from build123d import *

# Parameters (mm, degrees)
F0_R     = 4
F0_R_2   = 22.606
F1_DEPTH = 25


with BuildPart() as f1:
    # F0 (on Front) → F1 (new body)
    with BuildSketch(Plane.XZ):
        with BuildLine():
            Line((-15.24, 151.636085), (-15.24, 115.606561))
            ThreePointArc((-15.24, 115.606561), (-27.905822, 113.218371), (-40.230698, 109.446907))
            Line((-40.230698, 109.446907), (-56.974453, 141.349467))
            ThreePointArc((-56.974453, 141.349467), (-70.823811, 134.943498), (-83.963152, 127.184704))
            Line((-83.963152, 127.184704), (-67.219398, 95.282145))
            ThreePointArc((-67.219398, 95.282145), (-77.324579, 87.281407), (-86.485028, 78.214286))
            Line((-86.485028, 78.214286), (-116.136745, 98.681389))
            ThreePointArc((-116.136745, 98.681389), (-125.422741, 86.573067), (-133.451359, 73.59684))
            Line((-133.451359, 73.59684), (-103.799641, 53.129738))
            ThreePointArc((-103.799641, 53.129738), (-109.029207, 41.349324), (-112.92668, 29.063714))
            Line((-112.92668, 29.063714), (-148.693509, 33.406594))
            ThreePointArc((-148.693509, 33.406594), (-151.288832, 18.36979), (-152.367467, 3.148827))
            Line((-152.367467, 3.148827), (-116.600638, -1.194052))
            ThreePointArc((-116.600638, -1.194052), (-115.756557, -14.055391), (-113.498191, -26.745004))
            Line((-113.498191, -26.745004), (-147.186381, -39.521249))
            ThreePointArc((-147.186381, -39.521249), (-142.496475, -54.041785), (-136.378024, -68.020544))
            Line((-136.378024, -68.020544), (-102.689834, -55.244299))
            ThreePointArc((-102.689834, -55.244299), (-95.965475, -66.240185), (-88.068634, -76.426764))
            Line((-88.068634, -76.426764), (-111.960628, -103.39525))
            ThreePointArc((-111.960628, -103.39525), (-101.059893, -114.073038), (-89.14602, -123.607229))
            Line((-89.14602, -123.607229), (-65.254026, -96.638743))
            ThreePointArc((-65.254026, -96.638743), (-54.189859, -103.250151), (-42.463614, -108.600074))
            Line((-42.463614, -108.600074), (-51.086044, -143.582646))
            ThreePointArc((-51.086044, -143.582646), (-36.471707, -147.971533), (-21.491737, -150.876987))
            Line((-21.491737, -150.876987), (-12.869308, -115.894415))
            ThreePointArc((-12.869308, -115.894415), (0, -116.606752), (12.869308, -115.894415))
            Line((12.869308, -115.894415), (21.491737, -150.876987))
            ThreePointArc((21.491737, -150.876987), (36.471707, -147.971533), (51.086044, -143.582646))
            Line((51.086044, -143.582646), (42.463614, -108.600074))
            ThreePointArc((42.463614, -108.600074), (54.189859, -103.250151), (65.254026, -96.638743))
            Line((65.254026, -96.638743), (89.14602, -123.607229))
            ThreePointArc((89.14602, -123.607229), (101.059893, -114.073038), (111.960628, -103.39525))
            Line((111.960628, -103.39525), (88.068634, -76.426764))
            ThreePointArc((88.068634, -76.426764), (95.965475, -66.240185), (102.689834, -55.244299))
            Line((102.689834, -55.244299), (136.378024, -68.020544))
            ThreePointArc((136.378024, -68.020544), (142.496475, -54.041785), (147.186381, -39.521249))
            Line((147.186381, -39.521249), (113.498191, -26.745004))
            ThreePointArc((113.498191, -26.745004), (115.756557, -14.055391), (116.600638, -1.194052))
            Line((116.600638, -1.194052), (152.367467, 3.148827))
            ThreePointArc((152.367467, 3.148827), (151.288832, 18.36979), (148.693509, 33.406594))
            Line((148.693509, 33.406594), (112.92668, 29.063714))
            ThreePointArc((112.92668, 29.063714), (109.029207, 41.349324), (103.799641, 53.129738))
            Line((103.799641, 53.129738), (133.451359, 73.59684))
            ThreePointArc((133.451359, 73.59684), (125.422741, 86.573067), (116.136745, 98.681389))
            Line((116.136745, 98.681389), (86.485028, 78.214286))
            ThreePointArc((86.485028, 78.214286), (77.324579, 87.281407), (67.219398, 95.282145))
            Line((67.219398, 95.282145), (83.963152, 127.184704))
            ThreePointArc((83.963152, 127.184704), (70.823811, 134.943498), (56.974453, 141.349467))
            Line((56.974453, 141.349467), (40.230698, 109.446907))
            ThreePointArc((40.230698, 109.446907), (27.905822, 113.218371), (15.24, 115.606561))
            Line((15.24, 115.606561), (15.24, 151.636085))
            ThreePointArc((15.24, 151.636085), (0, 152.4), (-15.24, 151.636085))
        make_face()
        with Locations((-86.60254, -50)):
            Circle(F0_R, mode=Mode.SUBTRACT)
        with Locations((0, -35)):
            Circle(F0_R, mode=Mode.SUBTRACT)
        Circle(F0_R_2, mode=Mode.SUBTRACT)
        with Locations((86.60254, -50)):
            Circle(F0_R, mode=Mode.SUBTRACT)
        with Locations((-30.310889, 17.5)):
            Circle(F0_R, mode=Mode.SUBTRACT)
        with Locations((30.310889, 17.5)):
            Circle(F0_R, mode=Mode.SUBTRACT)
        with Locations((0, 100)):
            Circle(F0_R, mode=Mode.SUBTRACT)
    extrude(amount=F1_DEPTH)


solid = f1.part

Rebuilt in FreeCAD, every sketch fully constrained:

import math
import FreeCAD as App
import Part
import Sketcher
from FreeCAD import Vector
Q = App.Units.Quantity

doc = App.newDocument("Part")
body = doc.addObject("PartDesign::Body", "Body")

# Sketch on XZ plane
sketch1 = doc.addObject("Sketcher::SketchObject", "Sketch")
body.addObject(sketch1)
sketch1.AttachmentSupport = (doc.XZ_Plane, [""])
sketch1.MapMode = "FlatFace"
sketch1.addGeometry([
    Part.LineSegment(Vector(-15.24, 151.636085, 0), Vector(-15.24, 115.606561, 0)),  # 0
    Part.ArcOfCircle(Part.Circle(Vector(0.000017, -0.000066, 0), Vector(0, 0, 1), 116.606819), math.radians(97.509799), math.radians(110.182509)),  # 1
    Part.LineSegment(Vector(-40.230698, 109.446907, 0), Vector(-56.974453, 141.349467, 0)),  # 2
    Part.ArcOfCircle(Part.Circle(Vector(0.000039, -0.000064, 0), Vector(0, 0, 1), 152.400074), math.radians(111.953142), math.radians(123.431477)),  # 3
    Part.LineSegment(Vector(-83.963152, 127.184704, 0), Vector(-67.219398, 95.282145, 0)),  # 4
    Part.ArcOfCircle(Part.Circle(Vector(0.000041, -0.000046, 0), Vector(0, 0, 1), 116.606813), math.radians(125.202107), math.radians(137.874817)),  # 5
    Part.LineSegment(Vector(-86.485028, 78.214286, 0), Vector(-116.136745, 98.681389, 0)),  # 6
    Part.ArcOfCircle(Part.Circle(Vector(0.0001, -0.000069, 0), Vector(0, 0, 1), 152.400121), math.radians(139.645449), math.radians(151.123781)),  # 7
    Part.LineSegment(Vector(-133.451359, 73.59684, 0), Vector(-103.799641, 53.129738, 0)),  # 8
    Part.ArcOfCircle(Part.Circle(Vector(-0.000029, 0.000011, 0), Vector(0, 0, 1), 116.60672), math.radians(152.894409), math.radians(165.567129)),  # 9
    Part.LineSegment(Vector(-112.92668, 29.063714, 0), Vector(-148.693509, 33.406594, 0)),  # 10
    Part.ArcOfCircle(Part.Circle(Vector(0.000165, -0.00002, 0), Vector(0, 0, 1), 152.400166), math.radians(167.337759), math.radians(178.816088)),  # 11
    Part.LineSegment(Vector(-152.367467, 3.148827, 0), Vector(-116.600638, -1.194052, 0)),  # 12
    Part.ArcOfCircle(Part.Circle(Vector(0.000046, 0.000004, 0), Vector(0, 0, 1), 116.606798), math.radians(-179.41328), math.radians(-166.740568)),  # 13
    Part.LineSegment(Vector(-113.498191, -26.745004, 0), Vector(-147.186381, -39.521249, 0)),  # 14
    Part.ArcOfCircle(Part.Circle(Vector(-0.000036, -0.000013, 0), Vector(0, 0, 1), 152.399962), math.radians(-164.969941), math.radians(-153.491597)),  # 15
    Part.LineSegment(Vector(-136.378024, -68.020544, 0), Vector(-102.689834, -55.244299, 0)),  # 16
    Part.ArcOfCircle(Part.Circle(Vector(0.000036, 0.000026, 0), Vector(0, 0, 1), 116.606796), math.radians(-151.720971), math.radians(-139.048259)),  # 17
    Part.LineSegment(Vector(-88.068634, -76.426764, 0), Vector(-111.960628, -103.39525, 0)),  # 18
    Part.ArcOfCircle(Part.Circle(Vector(-0.000012, -0.000014, 0), Vector(0, 0, 1), 152.399982), math.radians(-137.277633), math.radians(-125.79929)),  # 19
    Part.LineSegment(Vector(-89.14602, -123.607229, 0), Vector(-65.254026, -96.638743, 0)),  # 20
    Part.ArcOfCircle(Part.Circle(Vector(0.000024, 0.000045, 0), Vector(0, 0, 1), 116.606802), math.radians(-124.028663), math.radians(-111.355952)),  # 21
    Part.LineSegment(Vector(-42.463614, -108.600074, 0), Vector(-51.086044, -143.582646, 0)),  # 22
    Part.ArcOfCircle(Part.Circle(Vector(0.000006, 0.000035, 0), Vector(0, 0, 1), 152.400036), math.radians(-109.585322), math.radians(-98.106984)),  # 23
    Part.LineSegment(Vector(-21.491737, -150.876987, 0), Vector(-12.869308, -115.894415, 0)),  # 24
    Part.ArcOfCircle(Part.Circle(Vector(0, -0.000067, 0), Vector(0, 0, 1), 116.606685), math.radians(-96.336362), math.radians(-83.663638)),  # 25
    Part.LineSegment(Vector(12.869308, -115.894415, 0), Vector(21.491737, -150.876987, 0)),  # 26
    Part.ArcOfCircle(Part.Circle(Vector(-0.000006, 0.000035, 0), Vector(0, 0, 1), 152.400036), math.radians(-81.893016), math.radians(-70.414678)),  # 27
    Part.LineSegment(Vector(51.086044, -143.582646, 0), Vector(42.463614, -108.600074, 0)),  # 28
    Part.ArcOfCircle(Part.Circle(Vector(-0.000024, 0.000045, 0), Vector(0, 0, 1), 116.606802), math.radians(-68.644048), math.radians(-55.971337)),  # 29
    Part.LineSegment(Vector(65.254026, -96.638743, 0), Vector(89.14602, -123.607229, 0)),  # 30
    Part.ArcOfCircle(Part.Circle(Vector(0.000012, -0.000014, 0), Vector(0, 0, 1), 152.399982), math.radians(-54.20071), math.radians(-42.722367)),  # 31
    Part.LineSegment(Vector(111.960628, -103.39525, 0), Vector(88.068634, -76.426764, 0)),  # 32
    Part.ArcOfCircle(Part.Circle(Vector(-0.000036, 0.000026, 0), Vector(0, 0, 1), 116.606796), math.radians(-40.951741), math.radians(-28.279029)),  # 33
    Part.LineSegment(Vector(102.689834, -55.244299, 0), Vector(136.378024, -68.020544, 0)),  # 34
    Part.ArcOfCircle(Part.Circle(Vector(0.000036, -0.000013, 0), Vector(0, 0, 1), 152.399962), math.radians(-26.508403), math.radians(-15.030059)),  # 35
    Part.LineSegment(Vector(147.186381, -39.521249, 0), Vector(113.498191, -26.745004, 0)),  # 36
    Part.ArcOfCircle(Part.Circle(Vector(-0.000046, 0.000004, 0), Vector(0, 0, 1), 116.606798), math.radians(-13.259432), math.radians(-0.58672)),  # 37
    Part.LineSegment(Vector(116.600638, -1.194052, 0), Vector(152.367467, 3.148827, 0)),  # 38
    Part.ArcOfCircle(Part.Circle(Vector(-0.000165, -0.00002, 0), Vector(0, 0, 1), 152.400166), math.radians(1.183912), math.radians(12.662241)),  # 39
    Part.LineSegment(Vector(148.693509, 33.406594, 0), Vector(112.92668, 29.063714, 0)),  # 40
    Part.ArcOfCircle(Part.Circle(Vector(0.000029, 0.000011, 0), Vector(0, 0, 1), 116.60672), math.radians(14.432871), math.radians(27.105591)),  # 41
    Part.LineSegment(Vector(103.799641, 53.129738, 0), Vector(133.451359, 73.59684, 0)),  # 42
    Part.ArcOfCircle(Part.Circle(Vector(-0.0001, -0.000069, 0), Vector(0, 0, 1), 152.400121), math.radians(28.876219), math.radians(40.354551)),  # 43
    Part.LineSegment(Vector(116.136745, 98.681389, 0), Vector(86.485028, 78.214286, 0)),  # 44
    Part.ArcOfCircle(Part.Circle(Vector(-0.000041, -0.000046, 0), Vector(0, 0, 1), 116.606813), math.radians(42.125183), math.radians(54.797893)),  # 45
    Part.LineSegment(Vector(67.219398, 95.282145, 0), Vector(83.963152, 127.184704, 0)),  # 46
    Part.ArcOfCircle(Part.Circle(Vector(-0.000039, -0.000064, 0), Vector(0, 0, 1), 152.400074), math.radians(56.568523), math.radians(68.046858)),  # 47
    Part.LineSegment(Vector(56.974453, 141.349467, 0), Vector(40.230698, 109.446907, 0)),  # 48
    Part.ArcOfCircle(Part.Circle(Vector(-0.000017, -0.000066, 0), Vector(0, 0, 1), 116.606819), math.radians(69.817491), math.radians(82.490201)),  # 49
    Part.LineSegment(Vector(15.24, 115.606561, 0), Vector(15.24, 151.636085, 0)),  # 50
    Part.ArcOfCircle(Part.Circle(Vector(0, 0.000082, 0), Vector(0, 0, 1), 152.399918), math.radians(84.260826), math.radians(95.739174)),  # 51
    Part.Circle(Vector(-86.60254, -50, 0), Vector(0, 0, 1), 4),  # 52
    Part.Circle(Vector(-30.310889, 17.5, 0), Vector(0, 0, 1), 4),  # 53
    Part.Circle(Vector(0, -35, 0), Vector(0, 0, 1), 4),  # 54
    Part.Circle(Vector(86.60254, -50, 0), Vector(0, 0, 1), 4),  # 55
    Part.Circle(Vector(0, 0, 0), Vector(0, 0, 1), 22.606),  # 56
    Part.Circle(Vector(30.310889, 17.5, 0), Vector(0, 0, 1), 4),  # 57
    Part.Circle(Vector(0, 100, 0), Vector(0, 0, 1), 4),  # 58
], False)
sketch1.addConstraint([
    Sketcher.Constraint("Coincident", 0, 2, 1, 1),
    Sketcher.Constraint("Coincident", 1, 2, 2, 1),
    Sketcher.Constraint("Coincident", 2, 2, 3, 1),
    Sketcher.Constraint("Coincident", 3, 2, 4, 1),
    Sketcher.Constraint("Coincident", 4, 2, 5, 1),
    Sketcher.Constraint("Coincident", 5, 2, 6, 1),
    Sketcher.Constraint("Coincident", 6, 2, 7, 1),
    Sketcher.Constraint("Coincident", 7, 2, 8, 1),
    Sketcher.Constraint("Coincident", 8, 2, 9, 1),
    Sketcher.Constraint("Coincident", 9, 2, 10, 1),
    Sketcher.Constraint("Coincident", 10, 2, 11, 1),
    Sketcher.Constraint("Coincident", 11, 2, 12, 1),
    Sketcher.Constraint("Coincident", 12, 2, 13, 1),
    Sketcher.Constraint("Coincident", 13, 2, 14, 1),
    Sketcher.Constraint("Coincident", 14, 2, 15, 1),
    Sketcher.Constraint("Coincident", 15, 2, 16, 1),
    Sketcher.Constraint("Coincident", 16, 2, 17, 1),
    Sketcher.Constraint("Coincident", 17, 2, 18, 1),
    Sketcher.Constraint("Coincident", 18, 2, 19, 1),
    Sketcher.Constraint("Coincident", 19, 2, 20, 1),
    Sketcher.Constraint("Coincident", 20, 2, 21, 1),
    Sketcher.Constraint("Coincident", 21, 2, 22, 1),
    Sketcher.Constraint("Coincident", 22, 2, 23, 1),
    Sketcher.Constraint("Coincident", 23, 2, 24, 1),
    Sketcher.Constraint("Coincident", 24, 2, 25, 1),
    Sketcher.Constraint("Coincident", 25, 2, 26, 1),
    Sketcher.Constraint("Coincident", 26, 2, 27, 1),
    Sketcher.Constraint("Coincident", 27, 2, 28, 1),
    Sketcher.Constraint("Coincident", 28, 2, 29, 1),
    Sketcher.Constraint("Coincident", 29, 2, 30, 1),
    Sketcher.Constraint("Coincident", 30, 2, 31, 1),
    Sketcher.Constraint("Coincident", 31, 2, 32, 1),
    Sketcher.Constraint("Coincident", 32, 2, 33, 1),
    Sketcher.Constraint("Coincident", 33, 2, 34, 1),
    Sketcher.Constraint("Coincident", 34, 2, 35, 1),
    Sketcher.Constraint("Coincident", 35, 2, 36, 1),
    Sketcher.Constraint("Coincident", 36, 2, 37, 1),
    Sketcher.Constraint("Coincident", 37, 2, 38, 1),
    Sketcher.Constraint("Coincident", 38, 2, 39, 1),
    Sketcher.Constraint("Coincident", 39, 2, 40, 1),
    Sketcher.Constraint("Coincident", 40, 2, 41, 1),
    Sketcher.Constraint("Coincident", 41, 2, 42, 1),
    Sketcher.Constraint("Coincident", 42, 2, 43, 1),
    Sketcher.Constraint("Coincident", 43, 2, 44, 1),
    Sketcher.Constraint("Coincident", 44, 2, 45, 1),
    Sketcher.Constraint("Coincident", 45, 2, 46, 1),
    Sketcher.Constraint("Coincident", 46, 2, 47, 1),
    Sketcher.Constraint("Coincident", 47, 2, 48, 1),
    Sketcher.Constraint("Coincident", 48, 2, 49, 1),
    Sketcher.Constraint("Coincident", 49, 2, 50, 1),
    Sketcher.Constraint("Coincident", 50, 2, 51, 1),
    Sketcher.Constraint("Coincident", 51, 2, 0, 1),
    Sketcher.Constraint("Vertical", 0),
    Sketcher.Constraint("Vertical", 50),
    Sketcher.Constraint("Coincident", 56, 3, -1, 1),
    Sketcher.Constraint("PointOnObject", 25, 3, -2),
    Sketcher.Constraint("PointOnObject", 51, 3, -2),
    Sketcher.Constraint("PointOnObject", 54, 3, -2),
    Sketcher.Constraint("PointOnObject", 58, 3, -2),
    Sketcher.Constraint("Diameter", 52, Q("8 mm")),
    Sketcher.Constraint("Diameter", 53, Q("8 mm")),
    Sketcher.Constraint("Diameter", 54, Q("8 mm")),
    Sketcher.Constraint("Diameter", 55, Q("8 mm")),
    Sketcher.Constraint("Diameter", 57, Q("8 mm")),
    Sketcher.Constraint("Diameter", 58, Q("8 mm")),
    Sketcher.Constraint("Diameter", 56, Q("45.212 mm")),
    Sketcher.Constraint("DistanceY", 52, 3, -1, 1, Q("50 mm")),
    Sketcher.Constraint("DistanceY", 54, 3, -1, 1, Q("35 mm")),
    Sketcher.Constraint("DistanceY", 55, 3, -1, 1, Q("50 mm")),
    Sketcher.Constraint("DistanceY", -1, 1, 58, 3, Q("100 mm")),
    Sketcher.Constraint("DistanceY", -1, 1, 53, 3, Q("17.5 mm")),
    Sketcher.Constraint("DistanceY", -1, 1, 57, 3, Q("17.5 mm")),
    Sketcher.Constraint("DistanceX", 0, 2, -1, 1, Q("15.24 mm")),
    Sketcher.Constraint("DistanceX", -1, 1, 49, 2, Q("15.24 mm")),
    Sketcher.Constraint("Radius", 1, Q("116.606819 mm")),
    Sketcher.Constraint("Radius", 7, Q("152.400121 mm")),
    Sketcher.Constraint("Radius", 9, Q("116.60672 mm")),
    Sketcher.Constraint("Radius", 15, Q("152.399962 mm")),
    Sketcher.Constraint("Radius", 19, Q("152.399982 mm")),
    Sketcher.Constraint("Radius", 31, Q("152.399982 mm")),
    Sketcher.Constraint("Radius", 35, Q("152.399962 mm")),
    Sketcher.Constraint("Radius", 41, Q("116.60672 mm")),
    Sketcher.Constraint("Radius", 43, Q("152.400121 mm")),
    Sketcher.Constraint("Radius", 49, Q("116.606819 mm")),
    Sketcher.Constraint("Radius", 3, Q("152.400074 mm")),
    Sketcher.Constraint("Radius", 5, Q("116.606813 mm")),
    Sketcher.Constraint("Radius", 11, Q("152.400166 mm")),
    Sketcher.Constraint("Radius", 13, Q("116.606798 mm")),
    Sketcher.Constraint("Radius", 17, Q("116.606796 mm")),
    Sketcher.Constraint("Radius", 21, Q("116.606802 mm")),
    Sketcher.Constraint("Radius", 23, Q("152.400036 mm")),
    Sketcher.Constraint("Radius", 25, Q("116.606685 mm")),
    Sketcher.Constraint("Radius", 27, Q("152.400036 mm")),
    Sketcher.Constraint("Radius", 29, Q("116.606802 mm")),
    Sketcher.Constraint("Radius", 33, Q("116.606796 mm")),
    Sketcher.Constraint("Radius", 37, Q("116.606798 mm")),
    Sketcher.Constraint("Radius", 39, Q("152.400166 mm")),
    Sketcher.Constraint("Radius", 45, Q("116.606813 mm")),
    Sketcher.Constraint("Radius", 47, Q("152.400074 mm")),
    Sketcher.Constraint("Radius", 51, Q("152.399918 mm")),
    Sketcher.Constraint("DistanceX", -1, 1, 7, 3, Q("0.0001 mm")),
    Sketcher.Constraint("DistanceX", 43, 3, -1, 1, Q("0.0001 mm")),
    Sketcher.Constraint("DistanceX", 4, 2, -1, 1, Q("67.219398 mm")),
    Sketcher.Constraint("DistanceY", 16, 2, -1, 1, Q("55.244299 mm")),
    Sketcher.Constraint("DistanceY", 33, 2, -1, 1, Q("55.244299 mm")),
    Sketcher.Constraint("DistanceX", -1, 1, 45, 2, Q("67.219398 mm")),
    Sketcher.Constraint("DistanceY", 0, 2, 0, 1, Q("36.029524 mm")),
    Sketcher.Constraint("DistanceY", 50, 1, 50, 2, Q("36.029524 mm")),
    Sketcher.Constraint("DistanceX", 52, 3, -1, 1, Q("86.60254 mm")),
    Sketcher.Constraint("DistanceX", 53, 3, -1, 1, Q("30.310889 mm")),
    Sketcher.Constraint("DistanceX", -1, 1, 55, 3, Q("86.60254 mm")),
    Sketcher.Constraint("DistanceX", -1, 1, 57, 3, Q("30.310889 mm")),
    Sketcher.Constraint("DistanceY", -1, 1, 0, 2, Q("115.606561 mm")),
    Sketcher.Constraint("DistanceX", 3, 2, -1, 1, Q("83.963152 mm")),
    Sketcher.Constraint("DistanceX", 5, 2, -1, 1, Q("86.485028 mm")),
    Sketcher.Constraint("DistanceY", -1, 1, 6, 2, Q("98.681389 mm")),
    Sketcher.Constraint("DistanceX", 7, 2, -1, 1, Q("133.451359 mm")),
    Sketcher.Constraint("DistanceY", -1, 1, 7, 2, Q("73.59684 mm")),
    Sketcher.Constraint("DistanceX", 8, 2, -1, 1, Q("103.799641 mm")),
    Sketcher.Constraint("DistanceY", -1, 1, 8, 2, Q("53.129738 mm")),
    Sketcher.Constraint("DistanceX", 9, 2, -1, 1, Q("112.92668 mm")),
    Sketcher.Constraint("DistanceX", 10, 2, -1, 1, Q("148.693509 mm")),
    Sketcher.Constraint("DistanceX", 12, 2, -1, 1, Q("116.600638 mm")),
    Sketcher.Constraint("DistanceY", 12, 2, -1, 1, Q("1.194052 mm")),
    Sketcher.Constraint("DistanceX", 13, 2, -1, 1, Q("113.498191 mm")),
    Sketcher.Constraint("DistanceX", 14, 2, -1, 1, Q("147.186381 mm")),
    Sketcher.Constraint("DistanceY", 14, 2, -1, 1, Q("39.521249 mm")),
    Sketcher.Constraint("DistanceX", 18, 2, -1, 1, Q("111.960628 mm")),
    Sketcher.Constraint("DistanceY", 18, 2, -1, 1, Q("103.39525 mm")),
    Sketcher.Constraint("DistanceX", 19, 2, -1, 1, Q("89.14602 mm")),
    Sketcher.Constraint("DistanceY", 19, 2, -1, 1, Q("123.607229 mm")),
    Sketcher.Constraint("DistanceX", -1, 1, 30, 2, Q("89.14602 mm")),
    Sketcher.Constraint("DistanceY", 30, 2, -1, 1, Q("123.607229 mm")),
    Sketcher.Constraint("DistanceY", 31, 2, -1, 1, Q("103.39525 mm")),
    Sketcher.Constraint("DistanceX", -1, 1, 35, 2, Q("147.186381 mm")),
    Sketcher.Constraint("DistanceY", 35, 2, -1, 1, Q("39.521249 mm")),
    Sketcher.Constraint("DistanceX", -1, 1, 36, 2, Q("113.498191 mm")),
    Sketcher.Constraint("DistanceX", -1, 1, 37, 2, Q("116.600638 mm")),
    Sketcher.Constraint("DistanceX", -1, 1, 39, 2, Q("148.693509 mm")),
    Sketcher.Constraint("DistanceX", -1, 1, 40, 2, Q("112.92668 mm")),
    Sketcher.Constraint("DistanceX", -1, 1, 41, 2, Q("103.799641 mm")),
    Sketcher.Constraint("DistanceX", -1, 1, 42, 2, Q("133.451359 mm")),
    Sketcher.Constraint("DistanceY", -1, 1, 42, 2, Q("73.59684 mm")),
    Sketcher.Constraint("DistanceY", -1, 1, 43, 2, Q("98.681389 mm")),
    Sketcher.Constraint("DistanceX", -1, 1, 44, 2, Q("86.485028 mm")),
    Sketcher.Constraint("DistanceX", -1, 1, 46, 2, Q("83.963152 mm")),
    Sketcher.Constraint("Distance", 2, Q("36.029525 mm")),
    Sketcher.Constraint("Distance", 4, Q("36.029524 mm")),
    Sketcher.Constraint("Distance", 6, Q("36.029524 mm")),
    Sketcher.Constraint("Distance", 10, Q("36.029525 mm")),
    Sketcher.Constraint("Distance", 12, Q("36.029525 mm")),
    Sketcher.Constraint("Distance", 14, Q("36.029524 mm")),
    Sketcher.Constraint("Distance", 16, Q("36.029524 mm")),
    Sketcher.Constraint("Distance", 18, Q("36.029524 mm")),
    Sketcher.Constraint("Distance", 20, Q("36.029524 mm")),
    Sketcher.Constraint("Distance", 22, Q("36.029525 mm")),
    Sketcher.Constraint("Distance", 24, Q("36.029524 mm")),
    Sketcher.Constraint("Distance", 26, Q("36.029524 mm")),
    Sketcher.Constraint("Distance", 28, Q("36.029525 mm")),
    Sketcher.Constraint("Distance", 30, Q("36.029524 mm")),
    Sketcher.Constraint("Distance", 32, Q("36.029524 mm")),
    Sketcher.Constraint("Distance", 34, Q("36.029524 mm")),
    Sketcher.Constraint("Distance", 36, Q("36.029524 mm")),
    Sketcher.Constraint("Distance", 38, Q("36.029525 mm")),
    Sketcher.Constraint("Distance", 40, Q("36.029525 mm")),
    Sketcher.Constraint("Distance", 42, Q("36.029525 mm")),
    Sketcher.Constraint("Distance", 44, Q("36.029524 mm")),
    Sketcher.Constraint("Distance", 46, Q("36.029524 mm")),
    Sketcher.Constraint("Distance", 48, Q("36.029525 mm")),
    Sketcher.Constraint("DistanceX", -1, 1, 11, 3, Q("0.000165 mm")),
    Sketcher.Constraint("DistanceX", 39, 3, -1, 1, Q("0.000165 mm")),
    Sketcher.Constraint("DistanceX", 1, 2, -1, 1, Q("40.230698 mm")),
    Sketcher.Constraint("DistanceY", -1, 1, 1, 2, Q("109.446907 mm")),
    Sketcher.Constraint("DistanceX", 2, 2, -1, 1, Q("56.974453 mm")),
    Sketcher.Constraint("DistanceY", -1, 1, 3, 2, Q("127.184704 mm")),
    Sketcher.Constraint("DistanceY", -1, 1, 9, 2, Q("29.063714 mm")),
    Sketcher.Constraint("DistanceX", 15, 2, -1, 1, Q("136.378024 mm")),
    Sketcher.Constraint("DistanceY", 15, 2, -1, 1, Q("68.020544 mm")),
    Sketcher.Constraint("DistanceX", 17, 2, -1, 1, Q("88.068634 mm")),
    Sketcher.Constraint("DistanceX", 20, 2, -1, 1, Q("65.254026 mm")),
    Sketcher.Constraint("DistanceX", 21, 2, -1, 1, Q("42.463614 mm")),
    Sketcher.Constraint("DistanceY", 21, 2, -1, 1, Q("108.600074 mm")),
    Sketcher.Constraint("DistanceX", 22, 2, -1, 1, Q("51.086044 mm")),
    Sketcher.Constraint("DistanceX", 23, 2, -1, 1, Q("21.491737 mm")),
    Sketcher.Constraint("DistanceY", 23, 2, -1, 1, Q("150.876987 mm")),
    Sketcher.Constraint("DistanceX", 24, 2, -1, 1, Q("12.869308 mm")),
    Sketcher.Constraint("DistanceX", -1, 1, 25, 2, Q("12.869308 mm")),
    Sketcher.Constraint("DistanceX", -1, 1, 26, 2, Q("21.491737 mm")),
    Sketcher.Constraint("DistanceX", -1, 1, 27, 2, Q("51.086044 mm")),
    Sketcher.Constraint("DistanceY", 27, 2, -1, 1, Q("143.582646 mm")),
    Sketcher.Constraint("DistanceX", -1, 1, 28, 2, Q("42.463614 mm")),
    Sketcher.Constraint("DistanceX", -1, 1, 29, 2, Q("65.254026 mm")),
    Sketcher.Constraint("DistanceX", -1, 1, 31, 2, Q("111.960628 mm")),
    Sketcher.Constraint("DistanceX", -1, 1, 32, 2, Q("88.068634 mm")),
    Sketcher.Constraint("DistanceX", -1, 1, 33, 2, Q("102.689834 mm")),
    Sketcher.Constraint("DistanceX", -1, 1, 34, 2, Q("136.378024 mm")),
    Sketcher.Constraint("DistanceY", 37, 2, -1, 1, Q("1.194052 mm")),
    Sketcher.Constraint("DistanceX", -1, 1, 38, 2, Q("152.367467 mm")),
    Sketcher.Constraint("DistanceY", -1, 1, 45, 2, Q("95.282145 mm")),
    Sketcher.Constraint("DistanceX", -1, 1, 47, 2, Q("56.974453 mm")),
    Sketcher.Constraint("DistanceY", -1, 1, 47, 2, Q("141.349467 mm")),
    Sketcher.Constraint("DistanceX", -1, 1, 48, 2, Q("40.230698 mm")),
])
pad1 = doc.addObject("PartDesign::Pad", "Pad")
body.addObject(pad1)
pad1.Profile = sketch1
pad1.Length = 25

doc.recompute()
